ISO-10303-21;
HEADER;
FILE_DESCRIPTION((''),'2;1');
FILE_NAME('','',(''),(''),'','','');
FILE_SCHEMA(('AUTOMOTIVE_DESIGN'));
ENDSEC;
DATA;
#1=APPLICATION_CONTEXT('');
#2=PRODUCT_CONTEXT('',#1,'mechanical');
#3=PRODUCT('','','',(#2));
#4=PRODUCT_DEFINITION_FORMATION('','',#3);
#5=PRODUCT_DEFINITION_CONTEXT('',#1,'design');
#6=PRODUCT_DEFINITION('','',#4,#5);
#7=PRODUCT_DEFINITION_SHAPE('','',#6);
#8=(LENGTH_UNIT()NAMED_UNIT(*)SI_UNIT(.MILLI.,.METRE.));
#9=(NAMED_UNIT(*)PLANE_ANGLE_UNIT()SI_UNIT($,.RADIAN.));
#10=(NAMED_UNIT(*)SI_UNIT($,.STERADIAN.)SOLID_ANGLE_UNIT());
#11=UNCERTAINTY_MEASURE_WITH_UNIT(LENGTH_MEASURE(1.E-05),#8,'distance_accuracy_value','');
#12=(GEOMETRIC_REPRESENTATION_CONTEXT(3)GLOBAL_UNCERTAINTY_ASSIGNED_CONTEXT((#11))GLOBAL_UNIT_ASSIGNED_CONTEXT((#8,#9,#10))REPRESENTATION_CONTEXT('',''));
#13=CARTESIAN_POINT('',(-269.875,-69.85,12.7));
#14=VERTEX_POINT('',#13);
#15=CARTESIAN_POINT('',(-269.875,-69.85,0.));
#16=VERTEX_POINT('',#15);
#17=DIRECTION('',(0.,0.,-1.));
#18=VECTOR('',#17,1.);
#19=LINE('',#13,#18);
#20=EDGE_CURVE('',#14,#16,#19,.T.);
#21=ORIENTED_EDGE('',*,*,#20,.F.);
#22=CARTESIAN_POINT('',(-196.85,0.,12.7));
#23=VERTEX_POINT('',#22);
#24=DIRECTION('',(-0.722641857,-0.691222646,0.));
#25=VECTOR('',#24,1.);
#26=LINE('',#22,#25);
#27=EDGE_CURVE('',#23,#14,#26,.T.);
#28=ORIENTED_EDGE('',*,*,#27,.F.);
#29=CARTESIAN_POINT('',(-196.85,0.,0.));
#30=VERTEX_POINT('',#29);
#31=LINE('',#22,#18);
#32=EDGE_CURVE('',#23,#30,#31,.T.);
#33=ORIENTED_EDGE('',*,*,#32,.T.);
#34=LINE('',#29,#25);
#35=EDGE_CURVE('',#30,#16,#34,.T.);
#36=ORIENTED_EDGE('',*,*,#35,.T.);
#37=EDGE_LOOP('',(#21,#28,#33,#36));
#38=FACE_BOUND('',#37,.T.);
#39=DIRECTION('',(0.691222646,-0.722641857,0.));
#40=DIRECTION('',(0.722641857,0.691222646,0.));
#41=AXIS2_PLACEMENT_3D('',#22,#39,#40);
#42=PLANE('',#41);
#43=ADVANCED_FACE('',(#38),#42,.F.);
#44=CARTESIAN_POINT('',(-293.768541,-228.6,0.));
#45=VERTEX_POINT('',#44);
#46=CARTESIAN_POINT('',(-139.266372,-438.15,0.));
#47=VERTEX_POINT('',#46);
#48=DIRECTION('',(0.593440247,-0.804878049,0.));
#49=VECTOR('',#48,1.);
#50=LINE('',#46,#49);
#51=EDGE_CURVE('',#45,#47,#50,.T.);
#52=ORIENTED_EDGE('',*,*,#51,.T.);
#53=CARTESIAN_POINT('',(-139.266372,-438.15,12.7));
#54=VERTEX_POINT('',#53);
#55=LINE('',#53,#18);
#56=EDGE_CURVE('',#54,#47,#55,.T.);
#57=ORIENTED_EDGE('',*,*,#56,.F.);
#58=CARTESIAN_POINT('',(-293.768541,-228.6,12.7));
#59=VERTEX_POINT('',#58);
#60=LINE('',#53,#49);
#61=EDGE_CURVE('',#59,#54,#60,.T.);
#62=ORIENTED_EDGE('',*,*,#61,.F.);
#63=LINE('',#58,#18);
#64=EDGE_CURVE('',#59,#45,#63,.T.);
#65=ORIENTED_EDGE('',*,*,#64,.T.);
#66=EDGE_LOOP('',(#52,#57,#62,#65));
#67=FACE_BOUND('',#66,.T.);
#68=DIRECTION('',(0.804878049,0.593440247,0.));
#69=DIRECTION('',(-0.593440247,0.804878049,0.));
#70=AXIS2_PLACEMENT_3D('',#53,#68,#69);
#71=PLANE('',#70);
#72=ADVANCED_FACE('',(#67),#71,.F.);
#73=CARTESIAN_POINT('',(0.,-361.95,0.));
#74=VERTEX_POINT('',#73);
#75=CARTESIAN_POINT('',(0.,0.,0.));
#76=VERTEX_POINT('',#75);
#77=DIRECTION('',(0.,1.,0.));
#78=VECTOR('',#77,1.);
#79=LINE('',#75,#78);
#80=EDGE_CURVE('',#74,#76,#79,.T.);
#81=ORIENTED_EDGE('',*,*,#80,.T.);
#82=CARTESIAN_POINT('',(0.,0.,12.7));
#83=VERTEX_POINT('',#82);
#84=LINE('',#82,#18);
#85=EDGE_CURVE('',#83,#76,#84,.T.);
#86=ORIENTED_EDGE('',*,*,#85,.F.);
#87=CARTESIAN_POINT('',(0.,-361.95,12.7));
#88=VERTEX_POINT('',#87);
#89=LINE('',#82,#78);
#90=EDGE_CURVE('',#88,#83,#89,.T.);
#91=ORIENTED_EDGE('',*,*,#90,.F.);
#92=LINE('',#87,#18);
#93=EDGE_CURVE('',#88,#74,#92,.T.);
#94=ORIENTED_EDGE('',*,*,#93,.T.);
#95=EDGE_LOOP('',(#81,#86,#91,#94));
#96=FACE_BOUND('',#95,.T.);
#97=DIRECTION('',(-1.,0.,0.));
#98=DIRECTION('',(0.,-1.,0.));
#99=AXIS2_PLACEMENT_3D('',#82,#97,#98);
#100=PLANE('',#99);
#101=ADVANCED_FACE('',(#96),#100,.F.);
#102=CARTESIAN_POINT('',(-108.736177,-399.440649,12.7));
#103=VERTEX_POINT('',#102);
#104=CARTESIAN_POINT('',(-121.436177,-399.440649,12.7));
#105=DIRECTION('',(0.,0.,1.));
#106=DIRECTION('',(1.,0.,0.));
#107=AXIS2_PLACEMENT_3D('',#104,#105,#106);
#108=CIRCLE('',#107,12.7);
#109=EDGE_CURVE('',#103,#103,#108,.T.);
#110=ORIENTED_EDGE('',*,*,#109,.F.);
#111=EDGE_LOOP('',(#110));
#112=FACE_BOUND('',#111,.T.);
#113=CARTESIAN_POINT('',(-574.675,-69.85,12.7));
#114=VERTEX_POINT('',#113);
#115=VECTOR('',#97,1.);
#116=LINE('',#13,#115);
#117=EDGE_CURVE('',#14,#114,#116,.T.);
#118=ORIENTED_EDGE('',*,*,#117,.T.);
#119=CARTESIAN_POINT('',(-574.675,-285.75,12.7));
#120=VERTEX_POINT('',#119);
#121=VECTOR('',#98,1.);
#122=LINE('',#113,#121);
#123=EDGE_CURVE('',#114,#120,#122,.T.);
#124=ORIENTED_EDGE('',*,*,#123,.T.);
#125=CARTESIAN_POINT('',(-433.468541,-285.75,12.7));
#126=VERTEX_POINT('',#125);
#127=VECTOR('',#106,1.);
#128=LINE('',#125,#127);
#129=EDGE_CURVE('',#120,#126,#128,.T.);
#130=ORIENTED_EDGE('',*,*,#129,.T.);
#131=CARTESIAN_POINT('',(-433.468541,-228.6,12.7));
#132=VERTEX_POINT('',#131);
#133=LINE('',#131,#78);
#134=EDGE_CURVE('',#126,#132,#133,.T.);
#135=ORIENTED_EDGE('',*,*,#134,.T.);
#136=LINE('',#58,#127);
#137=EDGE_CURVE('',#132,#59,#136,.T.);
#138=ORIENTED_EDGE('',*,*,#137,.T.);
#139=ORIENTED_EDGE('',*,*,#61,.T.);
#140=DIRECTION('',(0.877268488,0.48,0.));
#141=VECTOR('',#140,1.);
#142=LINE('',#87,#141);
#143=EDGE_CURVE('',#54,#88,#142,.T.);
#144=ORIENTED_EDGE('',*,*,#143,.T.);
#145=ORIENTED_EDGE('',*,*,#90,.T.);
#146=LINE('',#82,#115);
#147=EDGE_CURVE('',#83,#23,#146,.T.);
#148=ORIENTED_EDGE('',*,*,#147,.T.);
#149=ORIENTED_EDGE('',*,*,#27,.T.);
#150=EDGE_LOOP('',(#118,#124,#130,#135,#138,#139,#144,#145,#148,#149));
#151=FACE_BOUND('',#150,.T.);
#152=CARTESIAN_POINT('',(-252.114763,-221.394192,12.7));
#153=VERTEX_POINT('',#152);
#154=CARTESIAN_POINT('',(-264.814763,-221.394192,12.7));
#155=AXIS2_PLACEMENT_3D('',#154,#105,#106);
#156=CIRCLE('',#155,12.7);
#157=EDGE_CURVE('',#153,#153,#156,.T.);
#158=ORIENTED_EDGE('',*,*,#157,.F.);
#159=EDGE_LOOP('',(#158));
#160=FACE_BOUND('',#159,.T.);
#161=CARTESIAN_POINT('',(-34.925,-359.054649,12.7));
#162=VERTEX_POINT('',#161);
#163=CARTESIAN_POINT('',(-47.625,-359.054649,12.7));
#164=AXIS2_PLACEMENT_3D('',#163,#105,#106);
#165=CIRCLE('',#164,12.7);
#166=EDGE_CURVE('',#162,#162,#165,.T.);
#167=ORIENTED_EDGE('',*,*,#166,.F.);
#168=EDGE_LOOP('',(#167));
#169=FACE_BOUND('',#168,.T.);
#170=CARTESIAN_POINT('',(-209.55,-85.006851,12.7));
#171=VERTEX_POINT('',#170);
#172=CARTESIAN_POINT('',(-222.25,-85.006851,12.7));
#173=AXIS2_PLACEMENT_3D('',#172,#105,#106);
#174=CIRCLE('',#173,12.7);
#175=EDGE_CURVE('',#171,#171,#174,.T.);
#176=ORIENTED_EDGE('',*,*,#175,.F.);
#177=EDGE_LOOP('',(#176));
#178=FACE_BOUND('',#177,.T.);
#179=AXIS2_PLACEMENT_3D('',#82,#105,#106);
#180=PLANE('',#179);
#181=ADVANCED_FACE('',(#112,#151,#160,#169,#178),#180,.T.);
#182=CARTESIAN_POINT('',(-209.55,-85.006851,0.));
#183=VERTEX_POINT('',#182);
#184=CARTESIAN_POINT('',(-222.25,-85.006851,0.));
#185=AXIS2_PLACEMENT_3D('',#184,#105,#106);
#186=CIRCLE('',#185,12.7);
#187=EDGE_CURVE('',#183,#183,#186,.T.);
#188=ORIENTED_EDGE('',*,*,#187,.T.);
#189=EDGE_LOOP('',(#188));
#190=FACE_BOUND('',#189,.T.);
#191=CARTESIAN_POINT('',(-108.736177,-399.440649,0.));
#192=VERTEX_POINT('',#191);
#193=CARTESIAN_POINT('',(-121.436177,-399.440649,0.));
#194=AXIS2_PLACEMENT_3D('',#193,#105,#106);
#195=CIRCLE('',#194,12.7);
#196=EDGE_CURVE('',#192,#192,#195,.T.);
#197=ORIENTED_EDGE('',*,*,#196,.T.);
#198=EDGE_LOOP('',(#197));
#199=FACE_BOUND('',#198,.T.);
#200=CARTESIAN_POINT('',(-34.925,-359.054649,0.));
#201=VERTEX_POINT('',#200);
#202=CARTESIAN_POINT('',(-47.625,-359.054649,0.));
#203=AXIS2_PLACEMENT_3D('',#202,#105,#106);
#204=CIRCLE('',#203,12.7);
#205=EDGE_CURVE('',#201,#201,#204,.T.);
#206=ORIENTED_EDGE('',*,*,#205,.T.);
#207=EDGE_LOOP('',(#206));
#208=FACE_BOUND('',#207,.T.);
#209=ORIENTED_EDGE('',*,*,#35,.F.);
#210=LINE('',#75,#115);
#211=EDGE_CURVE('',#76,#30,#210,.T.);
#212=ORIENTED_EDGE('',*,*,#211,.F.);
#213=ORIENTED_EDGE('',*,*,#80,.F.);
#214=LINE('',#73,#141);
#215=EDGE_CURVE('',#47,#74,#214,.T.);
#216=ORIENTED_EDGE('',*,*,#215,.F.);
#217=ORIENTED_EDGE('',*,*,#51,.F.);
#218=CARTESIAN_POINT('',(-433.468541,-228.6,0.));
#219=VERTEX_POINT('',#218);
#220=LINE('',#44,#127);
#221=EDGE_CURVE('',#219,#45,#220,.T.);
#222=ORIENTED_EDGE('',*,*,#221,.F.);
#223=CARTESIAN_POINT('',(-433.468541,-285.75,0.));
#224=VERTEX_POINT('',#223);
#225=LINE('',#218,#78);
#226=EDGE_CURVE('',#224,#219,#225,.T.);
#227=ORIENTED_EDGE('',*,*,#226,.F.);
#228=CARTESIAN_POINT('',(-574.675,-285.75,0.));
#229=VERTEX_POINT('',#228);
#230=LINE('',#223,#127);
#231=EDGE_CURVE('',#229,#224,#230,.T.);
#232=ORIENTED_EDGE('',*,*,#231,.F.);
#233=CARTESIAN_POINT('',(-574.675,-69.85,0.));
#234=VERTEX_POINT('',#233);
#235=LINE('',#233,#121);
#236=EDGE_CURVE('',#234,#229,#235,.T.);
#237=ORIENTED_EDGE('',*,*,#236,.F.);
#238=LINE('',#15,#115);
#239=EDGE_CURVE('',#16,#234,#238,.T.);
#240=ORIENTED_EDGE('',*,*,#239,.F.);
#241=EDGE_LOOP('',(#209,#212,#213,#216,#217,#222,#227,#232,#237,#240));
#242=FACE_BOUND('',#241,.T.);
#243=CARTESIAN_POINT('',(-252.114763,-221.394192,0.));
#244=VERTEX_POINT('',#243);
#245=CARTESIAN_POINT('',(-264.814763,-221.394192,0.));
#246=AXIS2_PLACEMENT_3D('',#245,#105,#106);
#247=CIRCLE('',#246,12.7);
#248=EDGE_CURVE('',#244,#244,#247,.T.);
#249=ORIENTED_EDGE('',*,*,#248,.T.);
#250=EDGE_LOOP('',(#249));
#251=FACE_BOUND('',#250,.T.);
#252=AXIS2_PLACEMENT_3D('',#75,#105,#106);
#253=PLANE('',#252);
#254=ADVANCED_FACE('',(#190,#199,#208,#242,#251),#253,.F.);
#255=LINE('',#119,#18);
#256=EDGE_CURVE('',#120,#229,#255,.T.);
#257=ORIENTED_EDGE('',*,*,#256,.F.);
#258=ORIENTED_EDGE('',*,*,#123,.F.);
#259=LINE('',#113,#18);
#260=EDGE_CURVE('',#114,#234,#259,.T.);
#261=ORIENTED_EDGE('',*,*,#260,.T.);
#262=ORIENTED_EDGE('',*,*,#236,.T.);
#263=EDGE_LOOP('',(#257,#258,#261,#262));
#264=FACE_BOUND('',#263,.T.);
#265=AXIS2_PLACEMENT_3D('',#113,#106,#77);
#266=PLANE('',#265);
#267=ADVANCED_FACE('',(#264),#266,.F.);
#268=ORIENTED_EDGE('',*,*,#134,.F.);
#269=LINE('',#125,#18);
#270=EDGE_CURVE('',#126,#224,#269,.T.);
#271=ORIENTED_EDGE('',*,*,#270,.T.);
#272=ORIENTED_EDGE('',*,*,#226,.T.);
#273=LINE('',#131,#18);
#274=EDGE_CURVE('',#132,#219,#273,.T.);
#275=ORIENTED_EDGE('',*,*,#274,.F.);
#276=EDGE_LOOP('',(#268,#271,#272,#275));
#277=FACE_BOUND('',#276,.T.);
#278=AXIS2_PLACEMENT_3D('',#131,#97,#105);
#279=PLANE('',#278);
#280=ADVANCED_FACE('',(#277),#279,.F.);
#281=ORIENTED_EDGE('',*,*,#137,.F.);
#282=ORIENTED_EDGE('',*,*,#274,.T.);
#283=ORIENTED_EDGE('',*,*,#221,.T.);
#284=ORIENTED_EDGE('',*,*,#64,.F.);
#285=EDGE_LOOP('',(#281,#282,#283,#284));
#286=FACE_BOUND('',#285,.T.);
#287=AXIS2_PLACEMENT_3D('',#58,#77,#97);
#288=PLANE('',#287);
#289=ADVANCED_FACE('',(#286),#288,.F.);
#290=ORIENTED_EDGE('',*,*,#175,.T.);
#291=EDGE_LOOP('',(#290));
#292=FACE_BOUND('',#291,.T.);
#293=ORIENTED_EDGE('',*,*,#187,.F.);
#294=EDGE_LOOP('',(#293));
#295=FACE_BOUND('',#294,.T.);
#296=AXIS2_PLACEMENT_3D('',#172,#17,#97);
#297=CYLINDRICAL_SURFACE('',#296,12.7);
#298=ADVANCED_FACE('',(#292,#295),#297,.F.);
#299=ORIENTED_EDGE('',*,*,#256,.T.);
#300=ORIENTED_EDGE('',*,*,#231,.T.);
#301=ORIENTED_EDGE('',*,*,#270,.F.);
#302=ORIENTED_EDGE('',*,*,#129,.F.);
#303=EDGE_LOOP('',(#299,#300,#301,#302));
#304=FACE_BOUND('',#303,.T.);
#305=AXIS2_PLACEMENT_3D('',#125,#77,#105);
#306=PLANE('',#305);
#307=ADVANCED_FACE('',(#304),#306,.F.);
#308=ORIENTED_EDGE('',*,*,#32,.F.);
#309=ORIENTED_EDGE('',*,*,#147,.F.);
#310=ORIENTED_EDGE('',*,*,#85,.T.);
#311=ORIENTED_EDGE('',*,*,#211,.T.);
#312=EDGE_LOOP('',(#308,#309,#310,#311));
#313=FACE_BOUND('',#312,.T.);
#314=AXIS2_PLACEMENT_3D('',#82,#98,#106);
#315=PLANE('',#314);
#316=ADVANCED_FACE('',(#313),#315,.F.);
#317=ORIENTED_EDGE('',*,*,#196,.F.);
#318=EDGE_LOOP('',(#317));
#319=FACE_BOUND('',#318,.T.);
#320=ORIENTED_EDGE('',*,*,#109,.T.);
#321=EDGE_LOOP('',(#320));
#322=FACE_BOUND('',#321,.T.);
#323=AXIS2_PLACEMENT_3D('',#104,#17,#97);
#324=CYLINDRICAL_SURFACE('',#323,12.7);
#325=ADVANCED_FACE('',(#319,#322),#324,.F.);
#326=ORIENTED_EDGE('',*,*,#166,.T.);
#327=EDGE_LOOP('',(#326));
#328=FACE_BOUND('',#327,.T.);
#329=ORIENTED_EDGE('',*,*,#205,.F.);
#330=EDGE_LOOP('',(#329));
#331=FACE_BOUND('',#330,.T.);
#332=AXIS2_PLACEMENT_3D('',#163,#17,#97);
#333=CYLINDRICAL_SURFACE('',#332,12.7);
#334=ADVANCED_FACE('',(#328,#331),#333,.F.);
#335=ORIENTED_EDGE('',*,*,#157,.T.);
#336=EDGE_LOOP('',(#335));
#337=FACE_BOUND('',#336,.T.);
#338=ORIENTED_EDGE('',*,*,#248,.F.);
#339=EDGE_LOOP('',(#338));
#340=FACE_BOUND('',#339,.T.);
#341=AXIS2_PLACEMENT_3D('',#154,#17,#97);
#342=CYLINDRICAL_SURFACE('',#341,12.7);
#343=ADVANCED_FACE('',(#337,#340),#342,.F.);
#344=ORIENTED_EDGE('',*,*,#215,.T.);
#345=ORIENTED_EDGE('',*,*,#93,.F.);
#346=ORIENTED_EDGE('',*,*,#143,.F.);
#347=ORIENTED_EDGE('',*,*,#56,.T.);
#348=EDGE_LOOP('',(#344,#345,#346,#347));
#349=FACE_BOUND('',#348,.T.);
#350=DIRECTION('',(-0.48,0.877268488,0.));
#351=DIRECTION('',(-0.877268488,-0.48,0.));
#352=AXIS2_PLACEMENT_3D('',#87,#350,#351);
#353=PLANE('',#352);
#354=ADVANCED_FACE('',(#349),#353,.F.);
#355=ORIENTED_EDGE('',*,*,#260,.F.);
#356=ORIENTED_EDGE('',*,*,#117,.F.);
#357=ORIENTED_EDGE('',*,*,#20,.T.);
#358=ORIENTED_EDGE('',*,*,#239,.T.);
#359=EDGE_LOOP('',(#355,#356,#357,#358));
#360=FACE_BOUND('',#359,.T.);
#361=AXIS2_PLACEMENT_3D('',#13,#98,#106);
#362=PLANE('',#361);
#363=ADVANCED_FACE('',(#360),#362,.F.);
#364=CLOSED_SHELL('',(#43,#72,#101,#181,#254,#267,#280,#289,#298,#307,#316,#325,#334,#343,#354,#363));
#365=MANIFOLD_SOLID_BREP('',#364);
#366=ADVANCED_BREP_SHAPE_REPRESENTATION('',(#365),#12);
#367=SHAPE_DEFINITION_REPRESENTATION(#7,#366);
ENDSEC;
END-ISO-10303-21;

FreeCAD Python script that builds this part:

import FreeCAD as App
import Part
import Sketcher
from FreeCAD import Vector
Q = App.Units.Quantity


def add_polygon(sketch, points):
    """Adds a closed chain of lines whose ends are joined by coincident constraints."""
    first, n = sketch.GeometryCount, len(points)
    for a, b in zip(points, points[1:] + points[:1]):
        sketch.addGeometry(Part.LineSegment(App.Vector(*a, 0), App.Vector(*b, 0)), False)
    for i in range(n):
        sketch.addConstraint(Sketcher.Constraint("Coincident", first + i, 2, first + (i + 1) % n, 1))

doc = App.newDocument("Part")
params = doc.addObject("Spreadsheet::Sheet", "Params")
for row, (alias, value) in enumerate([
    ("sketch1_diameter", "1 in"),
    ("sketch1_width", "12 in"),
    ("sketch1_width2", "5.5 in"),
    ("sketch1_height", "8.5 in"),
    ("sketch1_width3", "7.75 in"),
    ("pad1_length", "0.5 in"),
], start=1):
    params.set(f"A{row}", alias)
    params.set(f"B{row}", "=" + value)
    params.setAlias(f"B{row}", alias)

body = doc.addObject("PartDesign::Body", "Body")

sketch1 = body.newObject("Sketcher::SketchObject", "Sketch")
sketch1.AttachmentSupport = (doc.getObject("XY_Plane"), [""])
sketch1.MapMode = "FlatFace"
add_polygon(sketch1, [(0, -362), (0, 0), (-197, 0), (-270, -70), (-575, -70), (-575, -286), (-433, -286), (-433, -229), (-294, -229), (-139, -438)])
sketch1.addGeometry(Part.Circle(Vector(-48, -359, 0), Vector(0, 0, 1), 13), False)
sketch1.addGeometry(Part.Circle(Vector(-121, -399, 0), Vector(0, 0, 1), 13), False)
sketch1.addGeometry(Part.Circle(Vector(-265, -221, 0), Vector(0, 0, 1), 13), False)
sketch1.addGeometry(Part.Circle(Vector(-222, -85, 0), Vector(0, 0, 1), 13), False)
sketch1.addConstraint([
    Sketcher.Constraint("Vertical", 0),
    Sketcher.Constraint("Horizontal", 1),
    Sketcher.Constraint("Horizontal", 3),
    Sketcher.Constraint("Vertical", 4),
    Sketcher.Constraint("Horizontal", 5),
    Sketcher.Constraint("Vertical", 6),
    Sketcher.Constraint("Horizontal", 7),
    Sketcher.Constraint("Coincident", 0, 2, -1, 1),
    Sketcher.Constraint("Equal", 10, 11),
    Sketcher.Constraint("Equal", 11, 12),
    Sketcher.Constraint("Equal", 12, 13),
    Sketcher.Constraint("Diameter", 10, Q("1 in")),
    Sketcher.Constraint("DistanceX", 3, 2, 3, 1, Q("12 in")),
    Sketcher.Constraint("DistanceX", 7, 1, 7, 2, Q("5.5 in")),
    Sketcher.Constraint("DistanceY", 4, 2, 4, 1, Q("8.5 in")),
    Sketcher.Constraint("DistanceY", 6, 2, -1, 1, Q("9 in")),
    Sketcher.Constraint("DistanceX", 13, 3, 1, 2, Q("1 in")),
    Sketcher.Constraint("DistanceY", 8, 2, 5, 2, Q("6 in")),
    Sketcher.Constraint("DistanceY", 8, 2, 9, 2, Q("3 in")),
    Sketcher.Constraint("DistanceX", 1, 2, 1, 1, Q("7.75 in")),
    Sketcher.Constraint("DistanceY", 0, 1, 0, 2, Q("14.25 in")),
    Sketcher.Constraint("Distance", 8, Q("10.25 in")),
    Sketcher.Constraint("Distance", 9, Q("6.25 in")),
    Sketcher.Constraint("DistanceY", 11, 3, 10, 3, Q("1.59 in")),
    Sketcher.Constraint("DistanceX", 10, 3, -1, 1, Q("1.875 in")),
    Sketcher.Constraint("DistanceX", 2, 2, -1, 1, Q("10.625 in")),
    Sketcher.Constraint("DistanceY", 10, 3, -1, 1, Q("359.054649 mm")),
    Sketcher.Constraint("DistanceY", 12, 3, -1, 1, Q("221.394192 mm")),
    Sketcher.Constraint("DistanceY", 13, 3, -1, 1, Q("85.006851 mm")),
    Sketcher.Constraint("DistanceX", 12, 3, 8, 2, Q("125.548391 mm")),
    Sketcher.Constraint("DistanceX", 11, 3, -1, 1, Q("121.436177 mm")),
])
sketch1.setExpression("Constraints[21]", "Params.sketch1_diameter")
sketch1.setExpression("Constraints[22]", "Params.sketch1_width")
sketch1.setExpression("Constraints[23]", "Params.sketch1_width2")
sketch1.setExpression("Constraints[24]", "Params.sketch1_height")
sketch1.setExpression("Constraints[29]", "Params.sketch1_width3")
pad1 = body.newObject("PartDesign::Pad", "Pad")
pad1.Profile = sketch1
pad1.setExpression("Length", "Params.pad1_length")

doc.recompute()
